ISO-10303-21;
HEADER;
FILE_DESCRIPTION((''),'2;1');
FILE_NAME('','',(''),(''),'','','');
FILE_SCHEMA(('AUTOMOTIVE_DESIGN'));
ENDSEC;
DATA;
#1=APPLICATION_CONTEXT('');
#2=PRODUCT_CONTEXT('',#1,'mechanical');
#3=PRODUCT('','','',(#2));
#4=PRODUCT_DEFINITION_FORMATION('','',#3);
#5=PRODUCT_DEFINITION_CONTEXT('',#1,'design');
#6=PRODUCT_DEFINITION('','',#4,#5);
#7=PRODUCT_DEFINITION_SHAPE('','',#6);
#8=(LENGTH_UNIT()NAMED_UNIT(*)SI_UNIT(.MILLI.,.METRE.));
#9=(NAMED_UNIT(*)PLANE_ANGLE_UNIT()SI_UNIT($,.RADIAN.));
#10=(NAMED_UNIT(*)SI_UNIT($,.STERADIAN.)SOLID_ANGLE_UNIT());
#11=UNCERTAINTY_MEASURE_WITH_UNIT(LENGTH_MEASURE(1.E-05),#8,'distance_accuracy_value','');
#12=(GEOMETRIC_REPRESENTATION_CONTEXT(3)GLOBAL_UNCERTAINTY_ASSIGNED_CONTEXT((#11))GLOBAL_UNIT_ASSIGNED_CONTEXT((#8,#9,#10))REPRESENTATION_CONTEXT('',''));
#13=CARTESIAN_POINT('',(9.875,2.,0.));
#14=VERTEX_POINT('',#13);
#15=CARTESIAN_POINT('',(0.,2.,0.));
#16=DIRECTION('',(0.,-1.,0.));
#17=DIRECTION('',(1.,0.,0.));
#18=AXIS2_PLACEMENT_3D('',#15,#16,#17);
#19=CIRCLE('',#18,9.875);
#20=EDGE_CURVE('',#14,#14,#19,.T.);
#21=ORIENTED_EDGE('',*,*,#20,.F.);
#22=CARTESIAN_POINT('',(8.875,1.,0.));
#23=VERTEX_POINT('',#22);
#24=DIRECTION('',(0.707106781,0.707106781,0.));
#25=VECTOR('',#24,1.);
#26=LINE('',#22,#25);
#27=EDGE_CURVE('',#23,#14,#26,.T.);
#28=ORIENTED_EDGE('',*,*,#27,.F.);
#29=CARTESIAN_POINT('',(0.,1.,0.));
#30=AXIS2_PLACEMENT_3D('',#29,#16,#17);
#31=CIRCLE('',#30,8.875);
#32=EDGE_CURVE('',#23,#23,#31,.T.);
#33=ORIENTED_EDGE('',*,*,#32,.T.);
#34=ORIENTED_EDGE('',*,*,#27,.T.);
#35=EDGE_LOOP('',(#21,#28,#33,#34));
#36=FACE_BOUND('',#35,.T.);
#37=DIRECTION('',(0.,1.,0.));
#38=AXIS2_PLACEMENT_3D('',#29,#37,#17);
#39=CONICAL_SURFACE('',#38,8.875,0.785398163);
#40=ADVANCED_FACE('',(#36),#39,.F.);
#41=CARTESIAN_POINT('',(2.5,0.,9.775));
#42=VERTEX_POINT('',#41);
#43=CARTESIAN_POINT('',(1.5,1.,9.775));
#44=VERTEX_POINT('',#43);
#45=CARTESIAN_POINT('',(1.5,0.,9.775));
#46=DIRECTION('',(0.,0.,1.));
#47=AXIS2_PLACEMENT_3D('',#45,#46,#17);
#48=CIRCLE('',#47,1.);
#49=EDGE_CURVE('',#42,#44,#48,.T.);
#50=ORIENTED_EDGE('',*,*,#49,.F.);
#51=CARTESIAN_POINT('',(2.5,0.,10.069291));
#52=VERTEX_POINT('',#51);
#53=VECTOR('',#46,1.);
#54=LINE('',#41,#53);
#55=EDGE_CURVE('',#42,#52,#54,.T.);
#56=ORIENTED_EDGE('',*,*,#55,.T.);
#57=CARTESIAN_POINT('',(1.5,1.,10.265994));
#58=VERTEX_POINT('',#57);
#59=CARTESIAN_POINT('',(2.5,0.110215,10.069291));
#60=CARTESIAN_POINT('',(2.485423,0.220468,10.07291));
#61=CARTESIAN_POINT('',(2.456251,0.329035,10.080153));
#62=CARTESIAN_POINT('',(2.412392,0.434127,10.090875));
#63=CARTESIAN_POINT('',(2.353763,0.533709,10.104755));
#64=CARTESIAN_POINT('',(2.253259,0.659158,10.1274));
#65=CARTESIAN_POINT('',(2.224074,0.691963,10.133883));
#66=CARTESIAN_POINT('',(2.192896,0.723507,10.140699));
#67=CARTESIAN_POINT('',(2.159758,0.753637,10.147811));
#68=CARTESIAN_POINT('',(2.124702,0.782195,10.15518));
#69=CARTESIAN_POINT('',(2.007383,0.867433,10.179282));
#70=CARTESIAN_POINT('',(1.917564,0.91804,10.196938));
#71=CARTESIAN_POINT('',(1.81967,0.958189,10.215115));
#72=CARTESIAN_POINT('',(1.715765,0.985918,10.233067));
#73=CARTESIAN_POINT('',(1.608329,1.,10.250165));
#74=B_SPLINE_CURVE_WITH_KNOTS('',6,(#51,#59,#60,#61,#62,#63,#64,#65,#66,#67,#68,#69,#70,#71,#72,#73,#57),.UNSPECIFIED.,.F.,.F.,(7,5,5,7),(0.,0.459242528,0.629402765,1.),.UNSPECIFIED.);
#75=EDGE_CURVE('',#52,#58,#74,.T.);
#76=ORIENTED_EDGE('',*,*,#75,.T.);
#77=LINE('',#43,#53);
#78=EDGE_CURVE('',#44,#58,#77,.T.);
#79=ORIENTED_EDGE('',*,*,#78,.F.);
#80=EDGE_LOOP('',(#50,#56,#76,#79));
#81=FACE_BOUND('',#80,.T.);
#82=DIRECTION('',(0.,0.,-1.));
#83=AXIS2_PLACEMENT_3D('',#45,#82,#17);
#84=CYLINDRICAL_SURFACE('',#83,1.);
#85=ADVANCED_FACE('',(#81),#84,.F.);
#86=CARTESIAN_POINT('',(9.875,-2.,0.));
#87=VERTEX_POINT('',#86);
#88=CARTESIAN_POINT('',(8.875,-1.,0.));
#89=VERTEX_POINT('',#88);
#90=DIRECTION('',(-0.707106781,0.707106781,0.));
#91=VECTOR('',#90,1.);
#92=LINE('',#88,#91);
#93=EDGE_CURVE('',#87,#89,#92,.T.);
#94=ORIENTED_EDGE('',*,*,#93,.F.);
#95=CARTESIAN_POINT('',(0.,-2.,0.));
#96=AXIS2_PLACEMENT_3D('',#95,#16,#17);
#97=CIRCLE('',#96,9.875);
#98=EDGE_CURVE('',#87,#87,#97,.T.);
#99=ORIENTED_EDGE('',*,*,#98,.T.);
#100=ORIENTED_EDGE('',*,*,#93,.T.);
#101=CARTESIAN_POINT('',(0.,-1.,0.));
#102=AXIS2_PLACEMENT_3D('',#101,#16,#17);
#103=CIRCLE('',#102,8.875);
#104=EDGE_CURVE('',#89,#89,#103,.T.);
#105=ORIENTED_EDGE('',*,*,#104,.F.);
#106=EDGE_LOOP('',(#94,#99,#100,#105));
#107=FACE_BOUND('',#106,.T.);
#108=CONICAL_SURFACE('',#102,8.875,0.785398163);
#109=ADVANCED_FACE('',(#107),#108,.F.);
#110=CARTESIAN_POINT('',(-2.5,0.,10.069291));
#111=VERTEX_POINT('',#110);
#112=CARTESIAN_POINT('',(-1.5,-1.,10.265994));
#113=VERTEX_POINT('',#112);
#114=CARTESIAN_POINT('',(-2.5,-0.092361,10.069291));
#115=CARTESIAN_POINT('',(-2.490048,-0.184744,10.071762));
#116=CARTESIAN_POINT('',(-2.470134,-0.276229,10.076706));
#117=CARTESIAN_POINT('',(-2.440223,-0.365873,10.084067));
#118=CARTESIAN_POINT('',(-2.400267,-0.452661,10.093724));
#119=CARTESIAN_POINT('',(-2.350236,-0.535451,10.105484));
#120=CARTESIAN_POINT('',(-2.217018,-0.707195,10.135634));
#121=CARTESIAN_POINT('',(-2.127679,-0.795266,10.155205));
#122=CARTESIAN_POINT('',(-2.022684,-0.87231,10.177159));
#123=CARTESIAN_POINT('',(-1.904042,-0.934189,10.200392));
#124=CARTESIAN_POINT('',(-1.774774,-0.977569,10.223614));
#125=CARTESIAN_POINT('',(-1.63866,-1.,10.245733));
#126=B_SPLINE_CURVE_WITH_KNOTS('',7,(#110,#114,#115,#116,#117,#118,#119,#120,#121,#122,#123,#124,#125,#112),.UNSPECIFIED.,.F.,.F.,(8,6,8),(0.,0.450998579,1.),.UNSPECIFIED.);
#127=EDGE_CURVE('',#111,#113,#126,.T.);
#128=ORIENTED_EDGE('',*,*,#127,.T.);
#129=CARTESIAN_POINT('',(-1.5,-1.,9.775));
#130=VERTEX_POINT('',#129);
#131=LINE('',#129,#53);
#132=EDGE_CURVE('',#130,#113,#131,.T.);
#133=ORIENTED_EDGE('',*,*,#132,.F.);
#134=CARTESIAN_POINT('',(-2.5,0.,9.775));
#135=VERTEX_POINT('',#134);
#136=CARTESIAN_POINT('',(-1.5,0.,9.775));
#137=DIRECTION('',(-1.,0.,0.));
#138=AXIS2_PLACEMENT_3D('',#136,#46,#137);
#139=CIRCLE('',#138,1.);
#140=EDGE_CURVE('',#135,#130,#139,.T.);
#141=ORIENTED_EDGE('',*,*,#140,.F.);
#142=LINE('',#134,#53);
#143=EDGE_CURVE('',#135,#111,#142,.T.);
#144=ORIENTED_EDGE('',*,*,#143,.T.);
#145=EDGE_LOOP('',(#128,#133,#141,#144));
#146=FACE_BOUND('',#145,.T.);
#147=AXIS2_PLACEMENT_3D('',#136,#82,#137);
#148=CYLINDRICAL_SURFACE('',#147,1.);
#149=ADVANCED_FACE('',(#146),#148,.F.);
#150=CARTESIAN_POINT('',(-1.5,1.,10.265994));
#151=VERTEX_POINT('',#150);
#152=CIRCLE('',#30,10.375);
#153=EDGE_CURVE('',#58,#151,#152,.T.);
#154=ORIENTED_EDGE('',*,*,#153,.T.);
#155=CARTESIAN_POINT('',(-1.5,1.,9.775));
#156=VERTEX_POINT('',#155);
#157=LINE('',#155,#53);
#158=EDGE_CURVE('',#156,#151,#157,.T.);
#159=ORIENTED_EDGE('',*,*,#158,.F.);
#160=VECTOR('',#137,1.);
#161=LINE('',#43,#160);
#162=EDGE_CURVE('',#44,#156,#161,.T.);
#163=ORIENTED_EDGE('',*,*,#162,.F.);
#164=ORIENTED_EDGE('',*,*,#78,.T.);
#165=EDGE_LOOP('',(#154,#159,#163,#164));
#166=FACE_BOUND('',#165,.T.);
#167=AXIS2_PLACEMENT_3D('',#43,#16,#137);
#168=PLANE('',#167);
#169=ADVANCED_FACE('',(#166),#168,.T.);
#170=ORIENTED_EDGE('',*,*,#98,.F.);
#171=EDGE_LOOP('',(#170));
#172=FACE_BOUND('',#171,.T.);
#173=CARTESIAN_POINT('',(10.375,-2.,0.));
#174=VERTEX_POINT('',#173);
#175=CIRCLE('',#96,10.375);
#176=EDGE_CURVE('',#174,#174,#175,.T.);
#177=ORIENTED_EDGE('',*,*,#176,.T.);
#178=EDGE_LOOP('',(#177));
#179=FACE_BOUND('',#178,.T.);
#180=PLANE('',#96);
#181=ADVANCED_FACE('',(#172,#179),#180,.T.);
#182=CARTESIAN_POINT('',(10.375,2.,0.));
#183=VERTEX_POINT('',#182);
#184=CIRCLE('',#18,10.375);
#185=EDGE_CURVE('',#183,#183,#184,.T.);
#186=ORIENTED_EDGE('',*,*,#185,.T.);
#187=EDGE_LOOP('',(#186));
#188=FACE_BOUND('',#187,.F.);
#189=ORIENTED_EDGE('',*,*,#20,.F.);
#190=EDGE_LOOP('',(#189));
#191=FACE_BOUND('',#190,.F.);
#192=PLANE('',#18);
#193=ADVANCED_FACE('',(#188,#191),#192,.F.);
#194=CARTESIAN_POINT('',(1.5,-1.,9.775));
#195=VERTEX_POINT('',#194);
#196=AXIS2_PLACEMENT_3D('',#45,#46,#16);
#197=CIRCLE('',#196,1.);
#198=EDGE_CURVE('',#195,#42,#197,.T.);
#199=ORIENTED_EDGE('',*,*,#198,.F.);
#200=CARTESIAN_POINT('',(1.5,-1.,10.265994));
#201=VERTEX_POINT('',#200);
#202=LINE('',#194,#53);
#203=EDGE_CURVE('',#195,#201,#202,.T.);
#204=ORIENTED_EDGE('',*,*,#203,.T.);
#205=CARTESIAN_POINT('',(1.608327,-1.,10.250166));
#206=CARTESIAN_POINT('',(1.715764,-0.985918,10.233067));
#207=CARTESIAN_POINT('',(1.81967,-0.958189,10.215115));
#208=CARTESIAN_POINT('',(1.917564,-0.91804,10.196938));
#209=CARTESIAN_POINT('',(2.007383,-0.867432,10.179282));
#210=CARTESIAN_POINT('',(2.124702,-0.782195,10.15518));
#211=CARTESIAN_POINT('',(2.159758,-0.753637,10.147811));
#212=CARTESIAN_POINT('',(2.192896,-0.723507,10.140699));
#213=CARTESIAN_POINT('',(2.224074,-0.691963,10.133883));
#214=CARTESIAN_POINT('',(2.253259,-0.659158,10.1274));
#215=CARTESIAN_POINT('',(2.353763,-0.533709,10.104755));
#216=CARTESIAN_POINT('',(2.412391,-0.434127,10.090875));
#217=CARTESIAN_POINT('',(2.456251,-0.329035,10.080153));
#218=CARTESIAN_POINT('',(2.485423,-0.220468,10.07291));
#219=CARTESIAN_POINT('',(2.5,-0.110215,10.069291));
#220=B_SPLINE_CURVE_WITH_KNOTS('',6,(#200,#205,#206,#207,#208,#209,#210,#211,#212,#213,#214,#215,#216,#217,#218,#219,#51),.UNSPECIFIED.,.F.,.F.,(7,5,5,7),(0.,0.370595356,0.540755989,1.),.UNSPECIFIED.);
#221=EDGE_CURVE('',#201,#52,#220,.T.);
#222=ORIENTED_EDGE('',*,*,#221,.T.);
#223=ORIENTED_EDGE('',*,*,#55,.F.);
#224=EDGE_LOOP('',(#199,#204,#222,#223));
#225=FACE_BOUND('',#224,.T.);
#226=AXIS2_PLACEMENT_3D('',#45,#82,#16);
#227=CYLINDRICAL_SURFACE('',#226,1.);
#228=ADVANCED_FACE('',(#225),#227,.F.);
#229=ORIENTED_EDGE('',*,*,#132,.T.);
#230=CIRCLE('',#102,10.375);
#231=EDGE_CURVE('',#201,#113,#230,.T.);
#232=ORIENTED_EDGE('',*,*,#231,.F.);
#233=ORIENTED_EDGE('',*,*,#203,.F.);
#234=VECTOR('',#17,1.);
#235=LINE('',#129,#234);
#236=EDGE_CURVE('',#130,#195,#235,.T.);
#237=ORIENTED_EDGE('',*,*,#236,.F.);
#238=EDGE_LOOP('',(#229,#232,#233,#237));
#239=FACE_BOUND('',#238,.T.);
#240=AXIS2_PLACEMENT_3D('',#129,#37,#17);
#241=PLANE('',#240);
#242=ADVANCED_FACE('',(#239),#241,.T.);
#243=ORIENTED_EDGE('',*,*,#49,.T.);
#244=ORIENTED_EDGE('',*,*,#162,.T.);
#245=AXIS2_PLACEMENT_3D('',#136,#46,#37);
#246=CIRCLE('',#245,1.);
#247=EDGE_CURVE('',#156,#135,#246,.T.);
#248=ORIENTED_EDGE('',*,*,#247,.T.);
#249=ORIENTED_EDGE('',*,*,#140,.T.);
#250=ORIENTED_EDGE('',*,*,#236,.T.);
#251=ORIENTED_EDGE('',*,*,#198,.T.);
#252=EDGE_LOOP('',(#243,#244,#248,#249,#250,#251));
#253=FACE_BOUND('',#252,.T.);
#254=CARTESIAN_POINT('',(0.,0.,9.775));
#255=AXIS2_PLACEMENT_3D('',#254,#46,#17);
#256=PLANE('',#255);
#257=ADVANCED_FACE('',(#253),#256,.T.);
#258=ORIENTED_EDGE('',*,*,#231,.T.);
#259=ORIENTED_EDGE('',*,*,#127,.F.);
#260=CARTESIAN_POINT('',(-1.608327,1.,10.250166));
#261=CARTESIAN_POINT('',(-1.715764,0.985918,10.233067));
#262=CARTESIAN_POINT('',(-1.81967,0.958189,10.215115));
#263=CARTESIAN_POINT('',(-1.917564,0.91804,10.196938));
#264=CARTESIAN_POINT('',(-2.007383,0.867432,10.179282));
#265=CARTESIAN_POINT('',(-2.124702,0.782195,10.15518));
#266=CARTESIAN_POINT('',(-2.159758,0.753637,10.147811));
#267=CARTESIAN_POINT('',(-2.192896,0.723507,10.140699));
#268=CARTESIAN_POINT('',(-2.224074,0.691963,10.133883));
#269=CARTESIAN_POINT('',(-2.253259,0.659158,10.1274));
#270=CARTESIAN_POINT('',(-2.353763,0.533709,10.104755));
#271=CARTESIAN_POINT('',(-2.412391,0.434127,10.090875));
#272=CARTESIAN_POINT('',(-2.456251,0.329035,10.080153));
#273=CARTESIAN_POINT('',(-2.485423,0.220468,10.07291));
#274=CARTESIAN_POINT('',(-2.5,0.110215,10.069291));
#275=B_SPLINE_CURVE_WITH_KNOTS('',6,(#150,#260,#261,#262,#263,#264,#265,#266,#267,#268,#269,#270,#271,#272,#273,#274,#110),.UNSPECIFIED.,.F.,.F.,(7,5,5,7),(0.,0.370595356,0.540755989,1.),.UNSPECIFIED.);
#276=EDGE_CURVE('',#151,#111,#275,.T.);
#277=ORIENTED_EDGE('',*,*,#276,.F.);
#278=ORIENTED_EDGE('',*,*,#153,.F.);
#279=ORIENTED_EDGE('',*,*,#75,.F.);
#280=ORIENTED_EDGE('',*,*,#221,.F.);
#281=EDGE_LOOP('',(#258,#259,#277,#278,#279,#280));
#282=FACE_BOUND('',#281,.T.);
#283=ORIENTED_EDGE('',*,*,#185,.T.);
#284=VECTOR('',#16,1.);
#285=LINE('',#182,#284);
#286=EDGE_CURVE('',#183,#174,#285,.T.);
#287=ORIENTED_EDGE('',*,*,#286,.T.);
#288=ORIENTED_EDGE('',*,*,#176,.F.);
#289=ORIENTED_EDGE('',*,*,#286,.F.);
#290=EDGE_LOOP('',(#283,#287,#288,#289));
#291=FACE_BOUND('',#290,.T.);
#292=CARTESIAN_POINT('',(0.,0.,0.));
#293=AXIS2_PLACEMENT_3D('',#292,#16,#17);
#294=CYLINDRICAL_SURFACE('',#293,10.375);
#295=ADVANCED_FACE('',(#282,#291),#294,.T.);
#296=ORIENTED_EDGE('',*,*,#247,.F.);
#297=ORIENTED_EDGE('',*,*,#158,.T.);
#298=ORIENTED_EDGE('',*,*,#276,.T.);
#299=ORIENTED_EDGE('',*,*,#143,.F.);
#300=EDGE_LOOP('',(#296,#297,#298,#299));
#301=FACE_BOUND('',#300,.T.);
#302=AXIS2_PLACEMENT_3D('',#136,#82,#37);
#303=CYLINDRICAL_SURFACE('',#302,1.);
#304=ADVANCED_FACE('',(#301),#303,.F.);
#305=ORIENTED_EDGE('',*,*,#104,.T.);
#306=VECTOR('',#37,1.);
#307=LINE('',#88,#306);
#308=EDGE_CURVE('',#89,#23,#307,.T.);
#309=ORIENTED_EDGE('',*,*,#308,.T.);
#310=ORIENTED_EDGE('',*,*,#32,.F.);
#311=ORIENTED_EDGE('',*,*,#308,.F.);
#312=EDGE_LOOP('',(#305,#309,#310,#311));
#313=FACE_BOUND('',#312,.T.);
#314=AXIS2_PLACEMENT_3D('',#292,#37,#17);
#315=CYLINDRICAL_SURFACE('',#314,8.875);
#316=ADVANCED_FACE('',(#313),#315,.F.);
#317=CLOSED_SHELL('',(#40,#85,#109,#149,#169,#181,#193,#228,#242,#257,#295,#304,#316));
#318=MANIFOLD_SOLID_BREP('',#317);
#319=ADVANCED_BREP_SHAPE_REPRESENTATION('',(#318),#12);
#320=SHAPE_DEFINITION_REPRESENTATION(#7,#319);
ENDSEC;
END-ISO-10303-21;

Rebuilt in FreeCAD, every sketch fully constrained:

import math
import FreeCAD as App
import Part
import Sketcher


def edges_at(feature, points):
    """Names of the edges that pass closest to the given points."""
    edges = feature.Shape.Edges
    near = lambda p: min(range(len(edges)), key=lambda i: edges[i].distToShape(Part.Vertex(*p))[0])
    return sorted({f"Edge{near(p) + 1}" for p in points})

doc = App.newDocument("Part")
body = doc.addObject("PartDesign::Body", "Body")

# Sketch on XZ plane
sketch1 = body.newObject("Sketcher::SketchObject", "Sketch")
sketch1.AttachmentSupport = (doc.getObject("XZ_Plane"), [""])
sketch1.MapMode = "FlatFace"
sketch1.addGeometry([
    Part.Circle(App.Vector(0, 0, 0), App.Vector(0, 0, 1), 10),
    Part.Circle(App.Vector(0, 0, 0), App.Vector(0, 0, 1), 9),
], False)
sketch1.addConstraint([
    Sketcher.Constraint("Coincident", 0, 3, -1, 1),
    Sketcher.Constraint("Coincident", 1, 3, -1, 1),
    Sketcher.Constraint("Diameter", 0, 20.75),
    Sketcher.Constraint("Diameter", 1, 17.75),
])
pad1 = body.newObject("PartDesign::Pad", "Pad")
pad1.Profile = sketch1
pad1.Type = "TwoLengths"
pad1.Length = 2
pad1.Length2 = 2
doc.recompute()

chamfer = body.newObject("PartDesign::Chamfer", "Chamfer")
chamfer.Base = (pad1, edges_at(pad1, [(-8.875, -2, 0), (-8.875, 2, 0)]))
chamfer.Size = 1

# Sketch on XY plane
sketch2 = body.newObject("Sketcher::SketchObject", "Sketch001")
sketch2.AttachmentSupport = (doc.getObject("XY_Plane"), [""])
sketch2.MapMode = "FlatFace"
sketch2.AttachmentOffset = App.Placement(App.Vector(0, 0, 9.775), App.Rotation())
sketch2.addGeometry([
    Part.LineSegment(App.Vector(-1.5, -1, 0), App.Vector(1.5, -1, 0)),  # 0
    Part.ArcOfCircle(Part.Circle(App.Vector(1.5, 0, 0), App.Vector(0, 0, 1), 1), math.radians(-90), math.radians(0)),  # 1
    Part.ArcOfCircle(Part.Circle(App.Vector(1.5, 0, 0), App.Vector(0, 0, 1), 1), math.radians(0), math.radians(90)),  # 2
    Part.LineSegment(App.Vector(1.5, 1, 0), App.Vector(-1.5, 1, 0)),  # 3
    Part.ArcOfCircle(Part.Circle(App.Vector(-1.5, 0, 0), App.Vector(0, 0, 1), 1), math.radians(90), math.radians(180)),  # 4
    Part.ArcOfCircle(Part.Circle(App.Vector(-1.5, 0, 0), App.Vector(0, 0, 1), 1), math.radians(180), math.radians(270)),  # 5
], False)
sketch2.addConstraint([
    Sketcher.Constraint("Tangent", 0, 2, 1, 1),
    Sketcher.Constraint("Tangent", 1, 2, 2, 1),
    Sketcher.Constraint("Tangent", 2, 2, 3, 1),
    Sketcher.Constraint("Tangent", 3, 2, 4, 1),
    Sketcher.Constraint("Tangent", 4, 2, 5, 1),
    Sketcher.Constraint("Tangent", 5, 2, 0, 1),
    Sketcher.Constraint("Horizontal", 0),
    Sketcher.Constraint("Horizontal", 3),
    Sketcher.Constraint("Equal", 1, 2),
    Sketcher.Constraint("Equal", 2, 4),
    Sketcher.Constraint("Symmetric", 1, 3, 4, 3, -1, 1),
    Sketcher.Constraint("PointOnObject", 1, 2, -1),
    Sketcher.Constraint("PointOnObject", 4, 2, -1),
    Sketcher.Constraint("Radius", 1, 1.0),
    Sketcher.Constraint("DistanceX", 0, 1, 0, 2, 3.0),
])
pocket1 = body.newObject("PartDesign::Pocket", "Pocket")
pocket1.Profile = sketch2
pocket1.Length = 15.225
pocket1.Reversed = True

doc.recompute()
